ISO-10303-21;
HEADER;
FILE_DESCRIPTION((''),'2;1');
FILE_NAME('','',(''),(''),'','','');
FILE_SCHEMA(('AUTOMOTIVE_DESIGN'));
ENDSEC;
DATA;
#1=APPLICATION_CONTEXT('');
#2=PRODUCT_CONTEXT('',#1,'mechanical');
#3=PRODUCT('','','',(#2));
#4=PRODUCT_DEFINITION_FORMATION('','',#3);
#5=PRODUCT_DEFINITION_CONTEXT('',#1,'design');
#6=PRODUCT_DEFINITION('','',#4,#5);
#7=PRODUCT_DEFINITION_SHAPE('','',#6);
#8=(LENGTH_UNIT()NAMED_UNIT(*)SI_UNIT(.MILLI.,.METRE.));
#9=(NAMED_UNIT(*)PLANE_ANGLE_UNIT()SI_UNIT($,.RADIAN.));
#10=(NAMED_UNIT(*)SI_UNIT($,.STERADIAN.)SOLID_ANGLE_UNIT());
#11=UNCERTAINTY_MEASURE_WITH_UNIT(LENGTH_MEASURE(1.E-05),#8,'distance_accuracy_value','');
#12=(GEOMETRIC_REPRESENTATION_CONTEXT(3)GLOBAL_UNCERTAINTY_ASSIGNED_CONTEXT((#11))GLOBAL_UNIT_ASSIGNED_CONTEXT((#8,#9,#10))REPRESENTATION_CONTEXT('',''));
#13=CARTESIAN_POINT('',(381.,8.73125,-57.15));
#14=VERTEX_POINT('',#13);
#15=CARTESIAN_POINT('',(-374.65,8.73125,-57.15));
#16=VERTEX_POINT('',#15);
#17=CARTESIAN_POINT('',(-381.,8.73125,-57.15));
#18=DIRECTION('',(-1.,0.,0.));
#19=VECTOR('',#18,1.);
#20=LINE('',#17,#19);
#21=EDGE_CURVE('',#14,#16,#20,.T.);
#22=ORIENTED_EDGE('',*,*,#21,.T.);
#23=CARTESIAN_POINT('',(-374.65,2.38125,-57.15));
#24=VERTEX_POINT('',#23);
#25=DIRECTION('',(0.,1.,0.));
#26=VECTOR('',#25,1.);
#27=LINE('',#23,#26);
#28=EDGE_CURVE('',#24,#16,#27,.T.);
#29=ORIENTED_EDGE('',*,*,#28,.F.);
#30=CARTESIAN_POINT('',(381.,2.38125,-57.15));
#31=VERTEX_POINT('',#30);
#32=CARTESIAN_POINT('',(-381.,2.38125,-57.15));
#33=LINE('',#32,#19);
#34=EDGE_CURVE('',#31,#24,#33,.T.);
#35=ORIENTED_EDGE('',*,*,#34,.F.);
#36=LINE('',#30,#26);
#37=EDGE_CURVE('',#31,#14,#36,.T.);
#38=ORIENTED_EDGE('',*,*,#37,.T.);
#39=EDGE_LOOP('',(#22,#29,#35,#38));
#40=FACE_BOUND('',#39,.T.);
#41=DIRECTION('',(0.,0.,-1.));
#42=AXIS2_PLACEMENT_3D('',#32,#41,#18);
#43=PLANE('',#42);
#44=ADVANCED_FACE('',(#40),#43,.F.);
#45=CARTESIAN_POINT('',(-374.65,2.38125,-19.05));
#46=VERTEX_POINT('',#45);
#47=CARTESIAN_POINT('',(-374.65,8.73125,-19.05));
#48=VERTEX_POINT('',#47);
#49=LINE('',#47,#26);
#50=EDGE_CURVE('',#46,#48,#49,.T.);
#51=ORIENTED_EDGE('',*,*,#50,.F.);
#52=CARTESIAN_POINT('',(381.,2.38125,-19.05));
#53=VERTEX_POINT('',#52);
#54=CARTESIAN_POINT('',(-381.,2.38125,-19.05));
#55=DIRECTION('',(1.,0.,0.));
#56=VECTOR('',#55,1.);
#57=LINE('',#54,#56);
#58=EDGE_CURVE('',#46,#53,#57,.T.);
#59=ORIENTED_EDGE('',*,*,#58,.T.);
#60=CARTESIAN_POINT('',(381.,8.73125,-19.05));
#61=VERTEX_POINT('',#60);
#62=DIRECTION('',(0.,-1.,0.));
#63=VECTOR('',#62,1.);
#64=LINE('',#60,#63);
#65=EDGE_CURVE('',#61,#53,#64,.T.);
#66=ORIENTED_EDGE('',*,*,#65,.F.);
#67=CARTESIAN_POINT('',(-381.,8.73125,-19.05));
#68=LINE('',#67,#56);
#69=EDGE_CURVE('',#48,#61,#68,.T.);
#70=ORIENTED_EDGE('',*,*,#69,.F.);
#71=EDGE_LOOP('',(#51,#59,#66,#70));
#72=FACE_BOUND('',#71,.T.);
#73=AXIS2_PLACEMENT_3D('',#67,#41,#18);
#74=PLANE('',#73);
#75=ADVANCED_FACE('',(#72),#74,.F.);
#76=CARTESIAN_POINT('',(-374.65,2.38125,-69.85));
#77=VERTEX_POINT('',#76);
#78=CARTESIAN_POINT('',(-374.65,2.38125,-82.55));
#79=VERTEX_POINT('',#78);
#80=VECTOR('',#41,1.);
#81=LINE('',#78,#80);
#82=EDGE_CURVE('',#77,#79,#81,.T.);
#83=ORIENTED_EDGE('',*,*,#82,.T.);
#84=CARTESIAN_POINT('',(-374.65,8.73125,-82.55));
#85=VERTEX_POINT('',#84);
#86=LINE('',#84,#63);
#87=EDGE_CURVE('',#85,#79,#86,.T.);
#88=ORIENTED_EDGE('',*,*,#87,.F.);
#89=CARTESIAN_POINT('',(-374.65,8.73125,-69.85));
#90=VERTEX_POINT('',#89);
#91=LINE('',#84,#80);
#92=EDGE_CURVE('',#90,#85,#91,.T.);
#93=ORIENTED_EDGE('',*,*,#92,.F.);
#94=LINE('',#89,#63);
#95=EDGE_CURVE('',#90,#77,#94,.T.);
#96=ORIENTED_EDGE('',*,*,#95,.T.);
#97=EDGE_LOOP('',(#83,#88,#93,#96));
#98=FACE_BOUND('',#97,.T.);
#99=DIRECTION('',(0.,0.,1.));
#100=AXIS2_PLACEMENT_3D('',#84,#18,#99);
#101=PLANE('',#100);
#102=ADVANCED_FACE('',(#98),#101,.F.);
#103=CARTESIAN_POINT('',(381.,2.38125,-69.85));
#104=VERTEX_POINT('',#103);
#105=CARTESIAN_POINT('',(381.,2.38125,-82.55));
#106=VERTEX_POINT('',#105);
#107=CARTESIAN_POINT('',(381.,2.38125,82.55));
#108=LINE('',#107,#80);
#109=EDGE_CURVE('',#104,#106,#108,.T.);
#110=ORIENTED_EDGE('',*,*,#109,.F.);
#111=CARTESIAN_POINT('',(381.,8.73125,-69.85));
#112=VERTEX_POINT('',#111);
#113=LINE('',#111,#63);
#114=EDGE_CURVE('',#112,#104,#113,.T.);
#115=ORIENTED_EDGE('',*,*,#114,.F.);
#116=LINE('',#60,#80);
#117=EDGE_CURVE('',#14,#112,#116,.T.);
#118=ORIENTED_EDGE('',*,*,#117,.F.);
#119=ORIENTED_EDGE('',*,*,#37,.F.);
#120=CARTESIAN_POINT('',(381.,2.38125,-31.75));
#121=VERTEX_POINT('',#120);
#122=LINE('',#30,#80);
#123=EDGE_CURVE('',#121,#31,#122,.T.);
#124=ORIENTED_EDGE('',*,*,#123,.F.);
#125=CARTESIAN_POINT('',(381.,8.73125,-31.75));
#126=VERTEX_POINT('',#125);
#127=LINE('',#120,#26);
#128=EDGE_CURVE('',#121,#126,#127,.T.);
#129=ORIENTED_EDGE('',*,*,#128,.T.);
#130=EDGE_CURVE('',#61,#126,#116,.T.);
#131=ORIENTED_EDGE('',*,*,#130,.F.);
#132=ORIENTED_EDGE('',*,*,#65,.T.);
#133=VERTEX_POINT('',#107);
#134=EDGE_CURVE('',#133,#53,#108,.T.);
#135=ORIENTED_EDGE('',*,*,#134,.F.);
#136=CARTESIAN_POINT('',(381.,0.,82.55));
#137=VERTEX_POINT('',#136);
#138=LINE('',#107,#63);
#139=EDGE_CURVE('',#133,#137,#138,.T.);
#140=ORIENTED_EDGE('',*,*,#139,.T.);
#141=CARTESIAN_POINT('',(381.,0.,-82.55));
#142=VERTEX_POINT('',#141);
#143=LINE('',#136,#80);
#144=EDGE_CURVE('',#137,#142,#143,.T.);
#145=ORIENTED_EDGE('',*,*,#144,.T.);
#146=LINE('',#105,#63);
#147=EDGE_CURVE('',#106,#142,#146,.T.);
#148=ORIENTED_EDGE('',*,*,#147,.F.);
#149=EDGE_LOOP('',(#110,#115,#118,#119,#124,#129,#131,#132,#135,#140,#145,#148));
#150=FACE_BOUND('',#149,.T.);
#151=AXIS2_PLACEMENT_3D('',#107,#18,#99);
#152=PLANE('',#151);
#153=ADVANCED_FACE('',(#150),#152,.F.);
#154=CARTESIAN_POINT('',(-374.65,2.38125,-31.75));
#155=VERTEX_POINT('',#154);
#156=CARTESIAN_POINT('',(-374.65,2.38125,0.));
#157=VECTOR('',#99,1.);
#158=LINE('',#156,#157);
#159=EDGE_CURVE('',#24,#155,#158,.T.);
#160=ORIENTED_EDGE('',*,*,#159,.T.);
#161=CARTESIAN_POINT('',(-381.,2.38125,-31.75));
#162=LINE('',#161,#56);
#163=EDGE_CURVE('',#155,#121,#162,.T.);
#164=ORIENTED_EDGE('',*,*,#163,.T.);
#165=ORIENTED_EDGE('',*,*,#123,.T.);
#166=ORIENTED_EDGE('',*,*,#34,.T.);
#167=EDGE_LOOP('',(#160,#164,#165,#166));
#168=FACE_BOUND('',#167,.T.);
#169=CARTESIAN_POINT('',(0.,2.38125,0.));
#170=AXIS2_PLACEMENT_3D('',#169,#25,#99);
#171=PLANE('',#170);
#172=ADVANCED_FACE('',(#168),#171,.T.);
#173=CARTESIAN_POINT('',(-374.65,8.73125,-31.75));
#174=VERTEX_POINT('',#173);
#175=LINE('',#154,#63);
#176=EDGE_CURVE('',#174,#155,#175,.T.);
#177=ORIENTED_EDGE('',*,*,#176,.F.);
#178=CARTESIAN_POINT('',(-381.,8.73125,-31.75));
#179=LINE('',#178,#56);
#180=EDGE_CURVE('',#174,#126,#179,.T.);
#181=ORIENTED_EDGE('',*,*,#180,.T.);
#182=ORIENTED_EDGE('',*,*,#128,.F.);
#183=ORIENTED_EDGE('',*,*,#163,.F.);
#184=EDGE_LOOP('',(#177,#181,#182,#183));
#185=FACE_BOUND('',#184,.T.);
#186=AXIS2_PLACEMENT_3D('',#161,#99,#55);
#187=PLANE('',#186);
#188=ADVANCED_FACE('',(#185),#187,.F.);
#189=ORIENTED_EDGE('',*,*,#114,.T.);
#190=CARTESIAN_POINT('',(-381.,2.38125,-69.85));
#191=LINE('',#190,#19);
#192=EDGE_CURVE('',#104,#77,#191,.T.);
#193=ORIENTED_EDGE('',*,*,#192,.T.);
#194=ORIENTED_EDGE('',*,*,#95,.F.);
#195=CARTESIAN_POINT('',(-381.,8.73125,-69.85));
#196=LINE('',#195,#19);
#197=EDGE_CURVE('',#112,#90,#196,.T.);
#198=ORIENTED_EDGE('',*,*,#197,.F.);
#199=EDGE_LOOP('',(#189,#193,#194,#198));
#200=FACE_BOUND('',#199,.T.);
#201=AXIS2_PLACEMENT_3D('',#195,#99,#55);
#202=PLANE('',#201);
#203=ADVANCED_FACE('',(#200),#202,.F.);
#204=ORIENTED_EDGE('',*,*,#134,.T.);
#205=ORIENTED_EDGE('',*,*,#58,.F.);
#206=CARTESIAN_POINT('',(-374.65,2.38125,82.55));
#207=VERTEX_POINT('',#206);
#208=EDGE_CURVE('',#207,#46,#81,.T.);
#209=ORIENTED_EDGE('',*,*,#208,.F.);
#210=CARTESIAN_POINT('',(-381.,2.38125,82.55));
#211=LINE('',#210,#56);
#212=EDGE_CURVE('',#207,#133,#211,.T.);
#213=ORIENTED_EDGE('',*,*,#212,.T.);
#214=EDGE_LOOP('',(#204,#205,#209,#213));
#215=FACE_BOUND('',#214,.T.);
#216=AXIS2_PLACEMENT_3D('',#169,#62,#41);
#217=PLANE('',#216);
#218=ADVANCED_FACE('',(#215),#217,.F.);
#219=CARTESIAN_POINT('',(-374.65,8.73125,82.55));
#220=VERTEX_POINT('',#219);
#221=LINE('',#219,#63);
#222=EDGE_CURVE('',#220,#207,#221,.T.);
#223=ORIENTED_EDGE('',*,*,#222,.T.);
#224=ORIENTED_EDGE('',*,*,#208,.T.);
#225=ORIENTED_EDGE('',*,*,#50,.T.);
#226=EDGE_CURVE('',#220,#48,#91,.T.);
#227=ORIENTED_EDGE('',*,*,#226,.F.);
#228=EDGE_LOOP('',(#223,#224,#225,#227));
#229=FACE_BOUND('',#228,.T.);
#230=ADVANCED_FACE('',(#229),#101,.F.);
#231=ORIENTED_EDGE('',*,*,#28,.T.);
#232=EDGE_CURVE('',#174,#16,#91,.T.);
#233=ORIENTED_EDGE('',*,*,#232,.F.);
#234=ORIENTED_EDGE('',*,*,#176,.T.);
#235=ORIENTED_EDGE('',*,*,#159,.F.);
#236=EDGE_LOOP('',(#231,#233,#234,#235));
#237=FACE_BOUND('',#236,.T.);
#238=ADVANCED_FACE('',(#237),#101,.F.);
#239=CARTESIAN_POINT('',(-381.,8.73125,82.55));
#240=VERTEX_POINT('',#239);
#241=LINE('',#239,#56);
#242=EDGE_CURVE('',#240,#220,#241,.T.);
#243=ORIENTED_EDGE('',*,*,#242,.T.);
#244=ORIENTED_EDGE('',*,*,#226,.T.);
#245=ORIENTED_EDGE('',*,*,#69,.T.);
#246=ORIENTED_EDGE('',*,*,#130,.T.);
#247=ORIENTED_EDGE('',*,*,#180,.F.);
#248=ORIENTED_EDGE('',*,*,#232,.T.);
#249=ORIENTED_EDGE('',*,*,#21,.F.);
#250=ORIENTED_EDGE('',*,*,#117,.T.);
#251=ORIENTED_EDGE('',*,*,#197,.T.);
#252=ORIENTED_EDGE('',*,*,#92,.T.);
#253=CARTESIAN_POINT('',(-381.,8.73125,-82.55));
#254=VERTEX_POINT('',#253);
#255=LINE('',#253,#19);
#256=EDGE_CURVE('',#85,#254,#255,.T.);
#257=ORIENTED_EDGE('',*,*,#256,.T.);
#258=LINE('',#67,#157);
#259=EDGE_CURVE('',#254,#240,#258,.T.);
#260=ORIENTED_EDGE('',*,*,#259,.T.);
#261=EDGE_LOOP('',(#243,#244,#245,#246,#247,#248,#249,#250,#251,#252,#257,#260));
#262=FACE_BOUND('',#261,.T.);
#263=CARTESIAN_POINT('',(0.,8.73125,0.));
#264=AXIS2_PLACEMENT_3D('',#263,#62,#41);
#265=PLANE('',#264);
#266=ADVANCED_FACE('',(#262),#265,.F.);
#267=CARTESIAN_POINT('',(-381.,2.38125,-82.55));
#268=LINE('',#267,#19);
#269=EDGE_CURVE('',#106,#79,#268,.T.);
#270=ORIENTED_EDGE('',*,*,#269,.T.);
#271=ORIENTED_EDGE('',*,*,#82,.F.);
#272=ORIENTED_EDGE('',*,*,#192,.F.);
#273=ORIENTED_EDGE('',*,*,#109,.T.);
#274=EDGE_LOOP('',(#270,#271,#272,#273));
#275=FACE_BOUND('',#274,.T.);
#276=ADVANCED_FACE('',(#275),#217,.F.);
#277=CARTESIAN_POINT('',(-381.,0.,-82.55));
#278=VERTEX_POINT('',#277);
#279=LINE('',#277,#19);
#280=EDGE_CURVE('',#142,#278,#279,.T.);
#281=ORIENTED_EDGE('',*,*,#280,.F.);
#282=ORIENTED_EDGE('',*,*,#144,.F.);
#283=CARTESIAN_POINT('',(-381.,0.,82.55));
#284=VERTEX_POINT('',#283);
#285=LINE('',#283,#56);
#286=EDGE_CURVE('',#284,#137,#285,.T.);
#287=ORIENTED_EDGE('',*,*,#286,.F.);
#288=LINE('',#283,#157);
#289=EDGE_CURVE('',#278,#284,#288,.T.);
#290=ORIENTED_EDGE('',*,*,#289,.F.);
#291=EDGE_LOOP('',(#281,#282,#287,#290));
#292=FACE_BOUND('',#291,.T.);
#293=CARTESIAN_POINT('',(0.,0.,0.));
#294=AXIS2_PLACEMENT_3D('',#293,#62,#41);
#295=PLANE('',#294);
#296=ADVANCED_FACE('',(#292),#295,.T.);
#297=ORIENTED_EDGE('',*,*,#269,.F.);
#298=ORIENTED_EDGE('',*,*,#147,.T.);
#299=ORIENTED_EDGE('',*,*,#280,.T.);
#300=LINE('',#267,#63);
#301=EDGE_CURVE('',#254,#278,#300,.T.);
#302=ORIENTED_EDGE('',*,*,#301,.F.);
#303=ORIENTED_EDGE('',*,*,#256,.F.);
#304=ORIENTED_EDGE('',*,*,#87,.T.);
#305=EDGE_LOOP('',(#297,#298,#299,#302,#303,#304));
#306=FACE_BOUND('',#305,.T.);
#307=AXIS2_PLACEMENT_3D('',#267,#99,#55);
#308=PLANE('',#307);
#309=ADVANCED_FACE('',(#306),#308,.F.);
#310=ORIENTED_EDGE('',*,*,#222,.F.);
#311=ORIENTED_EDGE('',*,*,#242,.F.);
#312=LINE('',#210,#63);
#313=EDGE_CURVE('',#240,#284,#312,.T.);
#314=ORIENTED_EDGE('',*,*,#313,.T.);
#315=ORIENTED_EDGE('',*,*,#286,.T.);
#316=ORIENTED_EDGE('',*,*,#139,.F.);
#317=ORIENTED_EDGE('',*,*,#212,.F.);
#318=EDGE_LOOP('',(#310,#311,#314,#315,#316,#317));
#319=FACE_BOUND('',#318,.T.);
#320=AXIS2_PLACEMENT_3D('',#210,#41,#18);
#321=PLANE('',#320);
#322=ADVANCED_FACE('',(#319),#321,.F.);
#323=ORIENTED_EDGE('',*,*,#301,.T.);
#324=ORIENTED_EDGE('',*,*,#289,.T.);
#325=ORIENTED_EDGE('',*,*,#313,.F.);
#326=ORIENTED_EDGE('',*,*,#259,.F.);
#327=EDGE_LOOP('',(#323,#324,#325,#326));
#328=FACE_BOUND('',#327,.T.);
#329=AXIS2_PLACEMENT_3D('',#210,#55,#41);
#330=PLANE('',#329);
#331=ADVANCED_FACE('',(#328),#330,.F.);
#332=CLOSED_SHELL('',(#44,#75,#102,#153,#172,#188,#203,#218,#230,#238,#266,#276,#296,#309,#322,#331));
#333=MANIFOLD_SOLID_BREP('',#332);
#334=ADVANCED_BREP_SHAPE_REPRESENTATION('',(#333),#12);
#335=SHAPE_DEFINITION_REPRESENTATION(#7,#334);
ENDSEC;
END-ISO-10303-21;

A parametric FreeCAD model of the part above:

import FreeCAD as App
import Part
import Sketcher

V = App.Vector
Q = App.Units.Quantity

doc = App.newDocument("Part")
params = doc.addObject("Spreadsheet::Sheet", "Params")
for row, (alias, value) in enumerate([
    ("sketch1_width", "30 in"),
    ("sketch1_height", "6.5 in"),
    ("pad1_length", "0.09375 in"),
    ("sketch2_width", "30 in"),
    ("sketch2_height", "2 in"),
    ("pad2_length", "0.25 in"),
    ("sketch3_width", "30 in"),
    ("sketch3_height", "1 in"),
    ("pocket1_length", "0.25 in"),
    ("sketch4_height", "6.5 in"),
    ("sketch4_width", "0.25 in"),
    ("pad3_length", "0.25 in"),
], start=1):
    params.set(f"A{row}", alias)
    params.set(f"B{row}", "=" + value)
    params.setAlias(f"B{row}", alias)

body = doc.addObject("PartDesign::Body", "Body")

# Sketch on XZ plane
sketch1 = doc.addObject("Sketcher::SketchObject", "Sketch")
body.addObject(sketch1)
sketch1.AttachmentSupport = (doc.XZ_Plane, [""])
sketch1.MapMode = "FlatFace"
sketch1.addGeometry(Part.LineSegment(V(-381, -82.55, 0), V(-381, 82.55, 0)), False)
sketch1.addGeometry(Part.LineSegment(V(-381, 82.55, 0), V(381, 82.55, 0)), False)
sketch1.addGeometry(Part.LineSegment(V(381, 82.55, 0), V(381, -82.55, 0)), False)
sketch1.addGeometry(Part.LineSegment(V(381, -82.55, 0), V(-381, -82.55, 0)), False)
sketch1.addConstraint(Sketcher.Constraint("Coincident", 0, 2, 1, 1))
sketch1.addConstraint(Sketcher.Constraint("Coincident", 1, 2, 2, 1))
sketch1.addConstraint(Sketcher.Constraint("Coincident", 2, 2, 3, 1))
sketch1.addConstraint(Sketcher.Constraint("Coincident", 3, 2, 0, 1))
sketch1.addConstraint(Sketcher.Constraint("Vertical", 0))
sketch1.addConstraint(Sketcher.Constraint("Horizontal", 1))
sketch1.addConstraint(Sketcher.Constraint("Vertical", 2))
sketch1.addConstraint(Sketcher.Constraint("Horizontal", 3))
sketch1.addConstraint(Sketcher.Constraint("Symmetric", 0, 2, 2, 2, -1, 1))
sketch1.addConstraint(Sketcher.Constraint("DistanceX", 1, 1, 1, 2, Q("30 in")))
sketch1.addConstraint(Sketcher.Constraint("DistanceY", 0, 1, 0, 2, Q("6.5 in")))
sketch1.setExpression("Constraints[9]", "Params.sketch1_width")
sketch1.setExpression("Constraints[10]", "Params.sketch1_height")
pad1 = doc.addObject("PartDesign::Pad", "Pad")
body.addObject(pad1)
pad1.Profile = sketch1
pad1.setExpression("Length", "Params.pad1_length")
pad1.Reversed = True

# Sketch on XZ plane
sketch2 = doc.addObject("Sketcher::SketchObject", "Sketch001")
body.addObject(sketch2)
sketch2.AttachmentSupport = (doc.XZ_Plane, [""])
sketch2.MapMode = "FlatFace"
sketch2.AttachmentOffset = App.Placement(V(0, 0, -0.09375 * 25.4), App.Rotation())
sketch2.addGeometry(Part.LineSegment(V(-381, -69.85, 0), V(-381, -19.05, 0)), False)
sketch2.addGeometry(Part.LineSegment(V(-381, -19.05, 0), V(381, -19.05, 0)), False)
sketch2.addGeometry(Part.LineSegment(V(381, -19.05, 0), V(381, -69.85, 0)), False)
sketch2.addGeometry(Part.LineSegment(V(381, -69.85, 0), V(-381, -69.85, 0)), False)
sketch2.addConstraint(Sketcher.Constraint("Coincident", 0, 2, 1, 1))
sketch2.addConstraint(Sketcher.Constraint("Coincident", 1, 2, 2, 1))
sketch2.addConstraint(Sketcher.Constraint("Coincident", 2, 2, 3, 1))
sketch2.addConstraint(Sketcher.Constraint("Coincident", 3, 2, 0, 1))
sketch2.addConstraint(Sketcher.Constraint("Vertical", 0))
sketch2.addConstraint(Sketcher.Constraint("Horizontal", 1))
sketch2.addConstraint(Sketcher.Constraint("Vertical", 2))
sketch2.addConstraint(Sketcher.Constraint("Horizontal", 3))
sketch2.addConstraint(Sketcher.Constraint("DistanceX", 1, 1, 1, 2, Q("30 in")))
sketch2.addConstraint(Sketcher.Constraint("DistanceY", 0, 1, 0, 2, Q("2 in")))
sketch2.addConstraint(Sketcher.Constraint("DistanceX", 0, 2, -1, 1, Q("15 in")))
sketch2.addConstraint(Sketcher.Constraint("DistanceY", 0, 2, -1, 1, Q("0.75 in")))
sketch2.setExpression("Constraints[8]", "Params.sketch2_width")
sketch2.setExpression("Constraints[9]", "Params.sketch2_height")
pad2 = doc.addObject("PartDesign::Pad", "Pad001")
body.addObject(pad2)
pad2.Profile = sketch2
pad2.setExpression("Length", "Params.pad2_length")
pad2.Reversed = True

# Sketch on XZ plane
sketch3 = doc.addObject("Sketcher::SketchObject", "Sketch002")
body.addObject(sketch3)
sketch3.AttachmentSupport = (doc.XZ_Plane, [""])
sketch3.MapMode = "FlatFace"
sketch3.AttachmentOffset = App.Placement(V(0, 0, -0.34375 * 25.4), App.Rotation())
sketch3.addGeometry(Part.LineSegment(V(-381, -57.15, 0), V(-381, -31.75, 0)), False)
sketch3.addGeometry(Part.LineSegment(V(-381, -31.75, 0), V(381, -31.75, 0)), False)
sketch3.addGeometry(Part.LineSegment(V(381, -31.75, 0), V(381, -57.15, 0)), False)
sketch3.addGeometry(Part.LineSegment(V(381, -57.15, 0), V(-381, -57.15, 0)), False)
sketch3.addConstraint(Sketcher.Constraint("Coincident", 0, 2, 1, 1))
sketch3.addConstraint(Sketcher.Constraint("Coincident", 1, 2, 2, 1))
sketch3.addConstraint(Sketcher.Constraint("Coincident", 2, 2, 3, 1))
sketch3.addConstraint(Sketcher.Constraint("Coincident", 3, 2, 0, 1))
sketch3.addConstraint(Sketcher.Constraint("Vertical", 0))
sketch3.addConstraint(Sketcher.Constraint("Horizontal", 1))
sketch3.addConstraint(Sketcher.Constraint("Vertical", 2))
sketch3.addConstraint(Sketcher.Constraint("Horizontal", 3))
sketch3.addConstraint(Sketcher.Constraint("DistanceX", 1, 1, 1, 2, Q("30 in")))
sketch3.addConstraint(Sketcher.Constraint("DistanceY", 0, 1, 0, 2, Q("1 in")))
sketch3.addConstraint(Sketcher.Constraint("DistanceX", 0, 2, -1, 1, Q("15 in")))
sketch3.addConstraint(Sketcher.Constraint("DistanceY", 0, 2, -1, 1, Q("1.25 in")))
sketch3.setExpression("Constraints[8]", "Params.sketch3_width")
sketch3.setExpression("Constraints[9]", "Params.sketch3_height")
pocket1 = doc.addObject("PartDesign::Pocket", "Pocket")
body.addObject(pocket1)
pocket1.Profile = sketch3
pocket1.setExpression("Length", "Params.pocket1_length")
pocket1.Reversed = True

# Sketch on XZ plane
sketch4 = doc.addObject("Sketcher::SketchObject", "Sketch003")
body.addObject(sketch4)
sketch4.AttachmentSupport = (doc.XZ_Plane, [""])
sketch4.MapMode = "FlatFace"
sketch4.AttachmentOffset = App.Placement(V(0, 0, -0.09375 * 25.4), App.Rotation())
sketch4.addGeometry(Part.LineSegment(V(-381, -82.55, 0), V(-381, 82.55, 0)), False)
sketch4.addGeometry(Part.LineSegment(V(-381, 82.55, 0), V(-374.65, 82.55, 0)), False)
sketch4.addGeometry(Part.LineSegment(V(-374.65, 82.55, 0), V(-374.65, -82.55, 0)), False)
sketch4.addGeometry(Part.LineSegment(V(-374.65, -82.55, 0), V(-381, -82.55, 0)), False)
sketch4.addConstraint(Sketcher.Constraint("Coincident", 0, 2, 1, 1))
sketch4.addConstraint(Sketcher.Constraint("Coincident", 1, 2, 2, 1))
sketch4.addConstraint(Sketcher.Constraint("Coincident", 2, 2, 3, 1))
sketch4.addConstraint(Sketcher.Constraint("Coincident", 3, 2, 0, 1))
sketch4.addConstraint(Sketcher.Constraint("Vertical", 0))
sketch4.addConstraint(Sketcher.Constraint("Horizontal", 1))
sketch4.addConstraint(Sketcher.Constraint("Vertical", 2))
sketch4.addConstraint(Sketcher.Constraint("Horizontal", 3))
sketch4.addConstraint(Sketcher.Constraint("DistanceY", 0, 1, 0, 2, Q("6.5 in")))
sketch4.addConstraint(Sketcher.Constraint("DistanceX", 0, 2, -1, 1, Q("15 in")))
sketch4.addConstraint(Sketcher.Constraint("DistanceX", 1, 1, 1, 2, Q("0.25 in")))
sketch4.addConstraint(Sketcher.Constraint("DistanceY", -1, 1, 0, 2, Q("3.25 in")))
sketch4.setExpression("Constraints[8]", "Params.sketch4_height")
sketch4.setExpression("Constraints[10]", "Params.sketch4_width")
pad3 = doc.addObject("PartDesign::Pad", "Pad002")
body.addObject(pad3)
pad3.Profile = sketch4
pad3.setExpression("Length", "Params.pad3_length")
pad3.Reversed = True

doc.recompute()
